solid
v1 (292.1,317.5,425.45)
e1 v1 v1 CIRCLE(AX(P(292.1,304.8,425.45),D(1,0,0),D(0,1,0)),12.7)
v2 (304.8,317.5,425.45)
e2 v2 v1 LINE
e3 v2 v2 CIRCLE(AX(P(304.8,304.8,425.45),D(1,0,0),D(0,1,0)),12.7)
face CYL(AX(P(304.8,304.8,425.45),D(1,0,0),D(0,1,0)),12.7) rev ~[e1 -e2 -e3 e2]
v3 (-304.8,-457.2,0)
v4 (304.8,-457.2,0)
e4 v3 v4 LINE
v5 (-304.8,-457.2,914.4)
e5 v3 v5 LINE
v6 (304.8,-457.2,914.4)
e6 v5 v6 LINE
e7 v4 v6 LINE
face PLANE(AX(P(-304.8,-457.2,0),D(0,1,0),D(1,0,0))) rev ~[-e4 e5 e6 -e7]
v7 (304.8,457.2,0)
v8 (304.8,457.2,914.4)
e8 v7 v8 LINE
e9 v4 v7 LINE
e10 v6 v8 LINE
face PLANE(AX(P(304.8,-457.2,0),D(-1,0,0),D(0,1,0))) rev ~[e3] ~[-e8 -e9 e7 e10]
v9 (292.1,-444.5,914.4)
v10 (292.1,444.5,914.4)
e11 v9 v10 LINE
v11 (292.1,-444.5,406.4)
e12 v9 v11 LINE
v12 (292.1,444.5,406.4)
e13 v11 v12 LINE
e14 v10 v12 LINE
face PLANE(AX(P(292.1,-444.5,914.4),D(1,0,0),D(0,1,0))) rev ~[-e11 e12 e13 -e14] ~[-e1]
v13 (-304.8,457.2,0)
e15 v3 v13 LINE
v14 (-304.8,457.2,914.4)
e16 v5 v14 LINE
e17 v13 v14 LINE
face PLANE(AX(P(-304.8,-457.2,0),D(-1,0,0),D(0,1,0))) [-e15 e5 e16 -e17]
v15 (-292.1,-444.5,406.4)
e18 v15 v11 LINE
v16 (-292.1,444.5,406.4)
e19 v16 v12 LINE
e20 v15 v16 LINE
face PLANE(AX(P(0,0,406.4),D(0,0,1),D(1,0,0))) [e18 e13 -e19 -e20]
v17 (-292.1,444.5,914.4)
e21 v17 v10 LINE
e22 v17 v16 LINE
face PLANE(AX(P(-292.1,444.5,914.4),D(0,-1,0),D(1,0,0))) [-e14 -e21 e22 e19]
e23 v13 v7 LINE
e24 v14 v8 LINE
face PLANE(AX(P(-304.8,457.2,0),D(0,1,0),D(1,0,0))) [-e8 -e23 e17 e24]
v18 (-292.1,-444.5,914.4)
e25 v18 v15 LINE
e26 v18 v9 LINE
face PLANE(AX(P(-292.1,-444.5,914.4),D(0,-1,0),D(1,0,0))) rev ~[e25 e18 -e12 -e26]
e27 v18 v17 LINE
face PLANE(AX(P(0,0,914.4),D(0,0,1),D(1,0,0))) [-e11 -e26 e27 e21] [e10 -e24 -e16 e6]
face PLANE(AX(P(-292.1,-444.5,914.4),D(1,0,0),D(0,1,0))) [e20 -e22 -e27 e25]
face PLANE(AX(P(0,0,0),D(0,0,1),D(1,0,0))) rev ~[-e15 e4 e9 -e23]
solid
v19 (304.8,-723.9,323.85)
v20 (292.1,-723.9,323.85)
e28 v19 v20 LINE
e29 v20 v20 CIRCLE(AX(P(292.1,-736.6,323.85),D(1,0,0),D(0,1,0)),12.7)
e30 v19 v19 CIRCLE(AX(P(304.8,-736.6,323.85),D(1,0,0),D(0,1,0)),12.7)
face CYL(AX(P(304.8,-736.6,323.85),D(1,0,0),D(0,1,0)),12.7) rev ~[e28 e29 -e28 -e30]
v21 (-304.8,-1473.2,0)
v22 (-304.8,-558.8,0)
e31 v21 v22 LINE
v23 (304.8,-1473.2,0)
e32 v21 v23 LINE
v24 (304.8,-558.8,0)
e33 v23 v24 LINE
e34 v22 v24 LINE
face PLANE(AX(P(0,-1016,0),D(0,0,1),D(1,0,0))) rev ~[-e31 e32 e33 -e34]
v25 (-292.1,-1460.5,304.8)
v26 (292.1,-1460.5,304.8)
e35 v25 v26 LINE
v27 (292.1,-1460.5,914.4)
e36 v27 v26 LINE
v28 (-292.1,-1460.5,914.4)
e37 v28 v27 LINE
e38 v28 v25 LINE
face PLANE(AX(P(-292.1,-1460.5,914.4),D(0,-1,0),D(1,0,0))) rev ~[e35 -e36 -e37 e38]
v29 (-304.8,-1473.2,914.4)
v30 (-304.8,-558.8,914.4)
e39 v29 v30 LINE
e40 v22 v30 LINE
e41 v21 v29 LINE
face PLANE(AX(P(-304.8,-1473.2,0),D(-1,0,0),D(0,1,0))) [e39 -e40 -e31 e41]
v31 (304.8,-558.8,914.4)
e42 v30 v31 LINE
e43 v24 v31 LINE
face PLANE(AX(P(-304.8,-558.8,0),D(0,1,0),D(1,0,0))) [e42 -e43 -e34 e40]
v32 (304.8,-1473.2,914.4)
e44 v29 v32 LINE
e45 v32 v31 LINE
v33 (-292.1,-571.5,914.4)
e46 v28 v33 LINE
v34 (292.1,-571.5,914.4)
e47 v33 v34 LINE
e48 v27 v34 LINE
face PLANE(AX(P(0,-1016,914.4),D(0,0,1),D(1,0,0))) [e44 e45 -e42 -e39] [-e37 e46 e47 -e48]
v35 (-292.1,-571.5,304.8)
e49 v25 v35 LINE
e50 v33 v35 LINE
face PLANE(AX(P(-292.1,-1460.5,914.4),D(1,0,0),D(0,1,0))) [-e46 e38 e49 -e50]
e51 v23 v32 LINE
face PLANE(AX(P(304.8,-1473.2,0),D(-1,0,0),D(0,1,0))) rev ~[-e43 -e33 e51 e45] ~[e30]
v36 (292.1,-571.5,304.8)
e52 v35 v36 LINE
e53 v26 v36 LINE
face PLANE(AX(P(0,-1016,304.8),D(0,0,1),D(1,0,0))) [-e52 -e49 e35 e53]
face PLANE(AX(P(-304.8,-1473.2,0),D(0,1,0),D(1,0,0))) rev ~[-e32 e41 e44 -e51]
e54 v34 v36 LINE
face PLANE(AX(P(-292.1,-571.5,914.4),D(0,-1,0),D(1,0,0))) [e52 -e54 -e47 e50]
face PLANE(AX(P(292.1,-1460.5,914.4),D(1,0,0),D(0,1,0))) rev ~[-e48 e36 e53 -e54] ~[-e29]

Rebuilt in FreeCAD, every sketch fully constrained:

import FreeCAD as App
import Part
import Sketcher
Q = App.Units.Quantity


def add_polygon(sketch, points):
    """Adds a closed chain of lines whose ends are joined by coincident constraints."""
    first, n = sketch.GeometryCount, len(points)
    for a, b in zip(points, points[1:] + points[:1]):
        sketch.addGeometry(Part.LineSegment(App.Vector(*a, 0), App.Vector(*b, 0)), False)
    for i in range(n):
        sketch.addConstraint(Sketcher.Constraint("Coincident", first + i, 2, first + (i + 1) % n, 1))

doc = App.newDocument("Part")
body = doc.addObject("PartDesign::Body", "Body")

# Sketch on XY plane
sketch1 = doc.addObject("Sketcher::SketchObject", "Sketch")
body.addObject(sketch1)
sketch1.AttachmentSupport = (doc.XY_Plane, [""])
sketch1.MapMode = "FlatFace"
add_polygon(sketch1, [(-305, 457), (-305, -457), (305, -457), (305, 457)])  # lines 0-3
sketch1.addConstraint(Sketcher.Constraint("Vertical", 0))
sketch1.addConstraint(Sketcher.Constraint("Horizontal", 1))
sketch1.addConstraint(Sketcher.Constraint("Vertical", 2))
sketch1.addConstraint(Sketcher.Constraint("Horizontal", 3))
sketch1.addConstraint(Sketcher.Constraint("Symmetric", 0, 2, 2, 2, -1, 1))
sketch1.addConstraint(Sketcher.Constraint("DistanceX", 1, 1, 1, 2, Q("24 in")))
sketch1.addConstraint(Sketcher.Constraint("DistanceY", 0, 2, 0, 1, Q("36 in")))
pad1 = doc.addObject("PartDesign::Pad", "Pad")
body.addObject(pad1)
pad1.Profile = sketch1
pad1.Length = Q("36 in")

# Sketch on XY plane
sketch2 = doc.addObject("Sketcher::SketchObject", "Sketch001")
body.addObject(sketch2)
sketch2.AttachmentSupport = (doc.XY_Plane, [""])
sketch2.MapMode = "FlatFace"
sketch2.AttachmentOffset = App.Placement(App.Vector(0, 0, 36 * 25.4), App.Rotation())
add_polygon(sketch2, [(-292, 444), (-292, -444), (292, -444), (292, 444)])  # lines 0-3
sketch2.addConstraint(Sketcher.Constraint("Vertical", 0))
sketch2.addConstraint(Sketcher.Constraint("Horizontal", 1))
sketch2.addConstraint(Sketcher.Constraint("Vertical", 2))
sketch2.addConstraint(Sketcher.Constraint("Horizontal", 3))
sketch2.addConstraint(Sketcher.Constraint("Symmetric", 0, 2, 2, 2, -1, 1))
sketch2.addConstraint(Sketcher.Constraint("DistanceX", 1, 1, 1, 2, Q("23 in")))
sketch2.addConstraint(Sketcher.Constraint("DistanceY", 0, 2, 0, 1, Q("35 in")))
pocket1 = doc.addObject("PartDesign::Pocket", "Pocket")
body.addObject(pocket1)
pocket1.Profile = sketch2
pocket1.Length = Q("20 in")

# Sketch on YZ plane
sketch3 = doc.addObject("Sketcher::SketchObject", "Sketch002")
body.addObject(sketch3)
sketch3.AttachmentSupport = (doc.YZ_Plane, [""])
sketch3.MapMode = "FlatFace"
sketch3.AttachmentOffset = App.Placement(App.Vector(0, 0, 12 * 25.4), App.Rotation())
sketch3.addGeometry(Part.Circle(App.Vector(305, 425, 0), App.Vector(0, 0, 1), 13), False)
sketch3.addConstraint(Sketcher.Constraint("Diameter", 0, Q("1 in")))
sketch3.addConstraint(Sketcher.Constraint("DistanceX", -1, 1, 0, 3, Q("12 in")))
sketch3.addConstraint(Sketcher.Constraint("DistanceY", -1, 1, 0, 3, Q("16.75 in")))
pocket2 = doc.addObject("PartDesign::Pocket", "Pocket001")
body.addObject(pocket2)
pocket2.Profile = sketch3
pocket2.Length = Q("1 in")
body2 = doc.addObject("PartDesign::Body", "Body001")

# Sketch on XY plane
sketch4 = doc.addObject("Sketcher::SketchObject", "Sketch003")
body2.addObject(sketch4)
sketch4.AttachmentSupport = (doc.getObject("XY_Plane001"), [""])
sketch4.MapMode = "FlatFace"
add_polygon(sketch4, [(-305, -559), (-305, -1473), (305, -1473), (305, -559)])  # lines 0-3
sketch4.addConstraint(Sketcher.Constraint("Vertical", 0))
sketch4.addConstraint(Sketcher.Constraint("Horizontal", 1))
sketch4.addConstraint(Sketcher.Constraint("Vertical", 2))
sketch4.addConstraint(Sketcher.Constraint("Horizontal", 3))
sketch4.addConstraint(Sketcher.Constraint("DistanceX", 1, 1, 1, 2, Q("24 in")))
sketch4.addConstraint(Sketcher.Constraint("DistanceY", 0, 2, 0, 1, Q("36 in")))
sketch4.addConstraint(Sketcher.Constraint("DistanceX", 0, 2, -1, 1, Q("12 in")))
sketch4.addConstraint(Sketcher.Constraint("DistanceY", 0, 2, -1, 1, Q("58 in")))
pad2 = doc.addObject("PartDesign::Pad", "Pad001")
body2.addObject(pad2)
pad2.Profile = sketch4
pad2.Length = Q("36 in")

# Sketch on XY plane
sketch5 = doc.addObject("Sketcher::SketchObject", "Sketch004")
body2.addObject(sketch5)
sketch5.AttachmentSupport = (doc.getObject("XY_Plane001"), [""])
sketch5.MapMode = "FlatFace"
sketch5.AttachmentOffset = App.Placement(App.Vector(0, 0, 36 * 25.4), App.Rotation())
add_polygon(sketch5, [(-292, -572), (-292, -1460), (292, -1460), (292, -572)])  # lines 0-3
sketch5.addConstraint(Sketcher.Constraint("Vertical", 0))
sketch5.addConstraint(Sketcher.Constraint("Horizontal", 1))
sketch5.addConstraint(Sketcher.Constraint("Vertical", 2))
sketch5.addConstraint(Sketcher.Constraint("Horizontal", 3))
sketch5.addConstraint(Sketcher.Constraint("DistanceX", 1, 1, 1, 2, Q("23 in")))
sketch5.addConstraint(Sketcher.Constraint("DistanceY", 0, 2, 0, 1, Q("35 in")))
sketch5.addConstraint(Sketcher.Constraint("DistanceX", 0, 2, -1, 1, Q("11.5 in")))
sketch5.addConstraint(Sketcher.Constraint("DistanceY", 0, 2, -1, 1, Q("57.5 in")))
pocket3 = doc.addObject("PartDesign::Pocket", "Pocket002")
body2.addObject(pocket3)
pocket3.Profile = sketch5
pocket3.Length = Q("24 in")

# Sketch on YZ plane
sketch6 = doc.addObject("Sketcher::SketchObject", "Sketch005")
body2.addObject(sketch6)
sketch6.AttachmentSupport = (doc.getObject("YZ_Plane001"), [""])
sketch6.MapMode = "FlatFace"
sketch6.AttachmentOffset = App.Placement(App.Vector(0, 0, 12 * 25.4), App.Rotation())
sketch6.addGeometry(Part.Circle(App.Vector(-737, 324, 0), App.Vector(0, 0, 1), 13), False)
sketch6.addConstraint(Sketcher.Constraint("Diameter", 0, Q("1 in")))
sketch6.addConstraint(Sketcher.Constraint("DistanceX", 0, 3, -1, 1, Q("29 in")))
sketch6.addConstraint(Sketcher.Constraint("DistanceY", -1, 1, 0, 3, Q("12.75 in")))
pocket4 = doc.addObject("PartDesign::Pocket", "Pocket003")
body2.addObject(pocket4)
pocket4.Profile = sketch6
pocket4.Length = Q("1 in")

doc.recompute()
